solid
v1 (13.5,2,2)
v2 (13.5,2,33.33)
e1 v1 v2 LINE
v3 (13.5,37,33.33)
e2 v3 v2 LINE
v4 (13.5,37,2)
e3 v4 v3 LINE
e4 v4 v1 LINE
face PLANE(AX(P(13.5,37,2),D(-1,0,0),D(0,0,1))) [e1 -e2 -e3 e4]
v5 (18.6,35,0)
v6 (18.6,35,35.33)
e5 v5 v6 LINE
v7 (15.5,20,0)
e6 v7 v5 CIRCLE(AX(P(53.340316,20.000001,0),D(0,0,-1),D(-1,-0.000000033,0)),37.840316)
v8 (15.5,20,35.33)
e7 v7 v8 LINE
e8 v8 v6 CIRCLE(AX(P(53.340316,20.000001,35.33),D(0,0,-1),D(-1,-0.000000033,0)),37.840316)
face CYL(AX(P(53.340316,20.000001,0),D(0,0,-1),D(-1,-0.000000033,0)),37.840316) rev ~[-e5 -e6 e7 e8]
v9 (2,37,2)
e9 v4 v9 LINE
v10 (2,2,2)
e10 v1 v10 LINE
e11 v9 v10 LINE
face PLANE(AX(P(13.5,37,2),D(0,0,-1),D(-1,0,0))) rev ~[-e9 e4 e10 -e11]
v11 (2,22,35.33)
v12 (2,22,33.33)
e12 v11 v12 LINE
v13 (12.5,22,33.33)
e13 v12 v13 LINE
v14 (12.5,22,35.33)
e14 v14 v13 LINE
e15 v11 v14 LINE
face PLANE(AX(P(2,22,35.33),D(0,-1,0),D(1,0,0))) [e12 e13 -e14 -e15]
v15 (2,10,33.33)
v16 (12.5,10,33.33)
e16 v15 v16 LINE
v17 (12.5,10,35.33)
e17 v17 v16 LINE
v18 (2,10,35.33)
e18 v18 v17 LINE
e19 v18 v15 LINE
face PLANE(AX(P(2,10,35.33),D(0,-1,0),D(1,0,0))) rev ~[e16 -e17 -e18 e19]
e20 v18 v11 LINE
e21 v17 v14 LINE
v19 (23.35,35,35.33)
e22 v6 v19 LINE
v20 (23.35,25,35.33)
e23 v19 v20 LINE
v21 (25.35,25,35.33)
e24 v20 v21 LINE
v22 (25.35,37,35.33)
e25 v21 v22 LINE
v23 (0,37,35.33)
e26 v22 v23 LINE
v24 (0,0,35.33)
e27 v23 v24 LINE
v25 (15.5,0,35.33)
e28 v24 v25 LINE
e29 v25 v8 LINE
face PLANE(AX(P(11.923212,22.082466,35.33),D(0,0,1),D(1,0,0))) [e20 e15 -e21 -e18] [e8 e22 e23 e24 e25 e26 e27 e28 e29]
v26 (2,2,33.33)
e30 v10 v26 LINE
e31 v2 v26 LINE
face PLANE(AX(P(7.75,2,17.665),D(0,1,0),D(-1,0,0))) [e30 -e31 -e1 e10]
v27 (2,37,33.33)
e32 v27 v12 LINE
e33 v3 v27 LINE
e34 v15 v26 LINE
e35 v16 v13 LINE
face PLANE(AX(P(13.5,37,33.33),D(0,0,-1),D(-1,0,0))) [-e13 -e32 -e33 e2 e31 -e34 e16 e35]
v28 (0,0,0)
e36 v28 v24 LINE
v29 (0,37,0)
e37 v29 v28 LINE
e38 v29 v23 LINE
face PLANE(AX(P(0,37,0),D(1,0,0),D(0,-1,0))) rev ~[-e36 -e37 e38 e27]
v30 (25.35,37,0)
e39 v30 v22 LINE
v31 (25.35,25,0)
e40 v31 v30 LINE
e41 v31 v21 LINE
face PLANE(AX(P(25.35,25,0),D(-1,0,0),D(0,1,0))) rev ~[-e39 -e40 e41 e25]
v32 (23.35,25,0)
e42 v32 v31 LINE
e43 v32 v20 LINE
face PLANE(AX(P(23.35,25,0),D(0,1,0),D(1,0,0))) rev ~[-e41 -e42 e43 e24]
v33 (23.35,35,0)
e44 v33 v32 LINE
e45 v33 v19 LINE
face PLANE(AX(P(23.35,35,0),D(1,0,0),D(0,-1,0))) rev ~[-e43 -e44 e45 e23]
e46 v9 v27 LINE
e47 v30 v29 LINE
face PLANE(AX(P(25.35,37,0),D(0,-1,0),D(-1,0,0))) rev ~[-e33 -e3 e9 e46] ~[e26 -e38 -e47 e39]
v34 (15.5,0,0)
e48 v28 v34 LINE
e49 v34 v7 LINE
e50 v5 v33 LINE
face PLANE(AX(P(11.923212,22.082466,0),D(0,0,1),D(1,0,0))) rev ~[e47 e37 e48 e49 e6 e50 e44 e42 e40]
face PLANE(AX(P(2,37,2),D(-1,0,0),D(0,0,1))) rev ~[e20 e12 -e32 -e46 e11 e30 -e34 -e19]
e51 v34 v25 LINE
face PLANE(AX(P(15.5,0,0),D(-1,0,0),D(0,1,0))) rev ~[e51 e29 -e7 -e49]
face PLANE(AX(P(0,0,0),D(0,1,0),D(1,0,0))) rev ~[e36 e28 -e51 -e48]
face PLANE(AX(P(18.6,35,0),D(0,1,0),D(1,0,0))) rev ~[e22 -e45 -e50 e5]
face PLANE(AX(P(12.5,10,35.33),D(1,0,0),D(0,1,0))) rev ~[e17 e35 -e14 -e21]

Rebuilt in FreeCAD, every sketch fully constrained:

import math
import FreeCAD as App
import Part
import Sketcher

V = App.Vector
Q = App.Units.Quantity

doc = App.newDocument("Part")
body = doc.addObject("PartDesign::Body", "Body")

# Sketch on XY plane
sketch1 = doc.addObject("Sketcher::SketchObject", "Sketch")
body.addObject(sketch1)
sketch1.AttachmentSupport = (doc.XY_Plane, [""])
sketch1.MapMode = "FlatFace"
sketch1.addGeometry([
    Part.LineSegment(V(0, 37, 0), V(0, 0, 0)),  # 0
    Part.LineSegment(V(0, 0, 0), V(15.5, 0, 0)),  # 1
    Part.LineSegment(V(15.5, 0, 0), V(15.5, 20, 0)),  # 2
    Part.ArcOfCircle(Part.Circle(V(53.3, 20, 0), V(0, 0, 1), 37.8), math.radians(157), math.radians(180)),  # 3
    Part.LineSegment(V(18.6, 35, 0), V(23.4, 35, 0)),  # 4
    Part.LineSegment(V(23.4, 35, 0), V(23.4, 25, 0)),  # 5
    Part.LineSegment(V(23.4, 25, 0), V(25.4, 25, 0)),  # 6
    Part.LineSegment(V(25.4, 25, 0), V(25.4, 37, 0)),  # 7
    Part.LineSegment(V(25.4, 37, 0), V(0, 37, 0)),  # 8
], False)
sketch1.addConstraint([
    Sketcher.Constraint("Coincident", 0, 2, 1, 1),
    Sketcher.Constraint("Coincident", 1, 2, 2, 1),
    Sketcher.Constraint("Tangent", 2, 2, 3, 2),
    Sketcher.Constraint("Coincident", 3, 1, 4, 1),
    Sketcher.Constraint("Coincident", 4, 2, 5, 1),
    Sketcher.Constraint("Coincident", 5, 2, 6, 1),
    Sketcher.Constraint("Coincident", 6, 2, 7, 1),
    Sketcher.Constraint("Coincident", 7, 2, 8, 1),
    Sketcher.Constraint("Coincident", 8, 2, 0, 1),
    Sketcher.Constraint("Vertical", 0),
    Sketcher.Constraint("Horizontal", 1),
    Sketcher.Constraint("Vertical", 2),
    Sketcher.Constraint("Horizontal", 4),
    Sketcher.Constraint("Vertical", 5),
    Sketcher.Constraint("Horizontal", 6),
    Sketcher.Constraint("Vertical", 7),
    Sketcher.Constraint("Horizontal", 8),
    Sketcher.Constraint("Coincident", 0, 2, -1, 1),
    Sketcher.Constraint("DistanceX", 6, 1, 6, 2, Q("2 mm")),
    Sketcher.Constraint("DistanceY", 0, 2, 0, 1, Q("37 mm")),
    Sketcher.Constraint("DistanceY", 2, 1, 2, 2, Q("20 mm")),
    Sketcher.Constraint("DistanceY", 5, 2, 5, 1, Q("10 mm")),
    Sketcher.Constraint("DistanceY", 7, 1, 7, 2, Q("12 mm")),
    Sketcher.Constraint("DistanceX", 1, 1, 1, 2, Q("15.5 mm")),
    Sketcher.Constraint("DistanceX", 4, 1, 4, 2, Q("4.75 mm")),
    Sketcher.Constraint("DistanceX", 8, 2, 8, 1, Q("25.35 mm")),
])
pad1 = doc.addObject("PartDesign::Pad", "Pad")
body.addObject(pad1)
pad1.Profile = sketch1
pad1.Length = 35.33

# Sketch on XZ plane
sketch2 = doc.addObject("Sketcher::SketchObject", "Sketch001")
body.addObject(sketch2)
sketch2.AttachmentSupport = (doc.XZ_Plane, [""])
sketch2.MapMode = "FlatFace"
sketch2.AttachmentOffset = App.Placement(V(0, 0, -37), App.Rotation())
sketch2.addGeometry([
    Part.LineSegment(V(14, 33, 0), V(14, 2, 0)),
    Part.LineSegment(V(14, 2, 0), V(2, 2, 0)),
    Part.LineSegment(V(2, 2, 0), V(2, 33, 0)),
    Part.LineSegment(V(2, 33, 0), V(14, 33, 0)),
], False)
sketch2.addConstraint([
    Sketcher.Constraint("Coincident", 0, 2, 1, 1),
    Sketcher.Constraint("Coincident", 1, 2, 2, 1),
    Sketcher.Constraint("Coincident", 2, 2, 3, 1),
    Sketcher.Constraint("Coincident", 3, 2, 0, 1),
    Sketcher.Constraint("Vertical", 0),
    Sketcher.Constraint("Horizontal", 1),
    Sketcher.Constraint("Vertical", 2),
    Sketcher.Constraint("Horizontal", 3),
    Sketcher.Constraint("DistanceX", 1, 2, 1, 1, Q("11.5 mm")),
    Sketcher.Constraint("DistanceY", -1, 1, 0, 2, Q("2 mm")),
    Sketcher.Constraint("DistanceX", -1, 1, 1, 2, Q("2 mm")),
    Sketcher.Constraint("DistanceY", 0, 2, 0, 1, Q("31.33 mm")),
])
pocket1 = doc.addObject("PartDesign::Pocket", "Pocket")
body.addObject(pocket1)
pocket1.Profile = sketch2
pocket1.Length = 35
pocket1.Reversed = True

# Sketch on XY plane
sketch3 = doc.addObject("Sketcher::SketchObject", "Sketch002")
body.addObject(sketch3)
sketch3.AttachmentSupport = (doc.XY_Plane, [""])
sketch3.MapMode = "FlatFace"
sketch3.AttachmentOffset = App.Placement(V(0, 0, 35.33), App.Rotation())
sketch3.addGeometry([
    Part.LineSegment(V(2, 22, 0), V(2, 10, 0)),
    Part.LineSegment(V(2, 10, 0), V(12, 10, 0)),
    Part.LineSegment(V(12, 10, 0), V(12, 22, 0)),
    Part.LineSegment(V(12, 22, 0), V(2, 22, 0)),
], False)
sketch3.addConstraint([
    Sketcher.Constraint("Coincident", 0, 2, 1, 1),
    Sketcher.Constraint("Coincident", 1, 2, 2, 1),
    Sketcher.Constraint("Coincident", 2, 2, 3, 1),
    Sketcher.Constraint("Coincident", 3, 2, 0, 1),
    Sketcher.Constraint("Vertical", 0),
    Sketcher.Constraint("Horizontal", 1),
    Sketcher.Constraint("Vertical", 2),
    Sketcher.Constraint("Horizontal", 3),
    Sketcher.Constraint("DistanceY", 0, 2, 0, 1, Q("12 mm")),
    Sketcher.Constraint("DistanceX", 1, 1, 1, 2, Q("10.5 mm")),
    Sketcher.Constraint("DistanceX", -1, 1, 0, 2, Q("2 mm")),
    Sketcher.Constraint("DistanceY", -1, 1, 0, 2, Q("10 mm")),
])
pocket2 = doc.addObject("PartDesign::Pocket", "Pocket001")
body.addObject(pocket2)
pocket2.Profile = sketch3
pocket2.Length = 2

doc.recompute()
